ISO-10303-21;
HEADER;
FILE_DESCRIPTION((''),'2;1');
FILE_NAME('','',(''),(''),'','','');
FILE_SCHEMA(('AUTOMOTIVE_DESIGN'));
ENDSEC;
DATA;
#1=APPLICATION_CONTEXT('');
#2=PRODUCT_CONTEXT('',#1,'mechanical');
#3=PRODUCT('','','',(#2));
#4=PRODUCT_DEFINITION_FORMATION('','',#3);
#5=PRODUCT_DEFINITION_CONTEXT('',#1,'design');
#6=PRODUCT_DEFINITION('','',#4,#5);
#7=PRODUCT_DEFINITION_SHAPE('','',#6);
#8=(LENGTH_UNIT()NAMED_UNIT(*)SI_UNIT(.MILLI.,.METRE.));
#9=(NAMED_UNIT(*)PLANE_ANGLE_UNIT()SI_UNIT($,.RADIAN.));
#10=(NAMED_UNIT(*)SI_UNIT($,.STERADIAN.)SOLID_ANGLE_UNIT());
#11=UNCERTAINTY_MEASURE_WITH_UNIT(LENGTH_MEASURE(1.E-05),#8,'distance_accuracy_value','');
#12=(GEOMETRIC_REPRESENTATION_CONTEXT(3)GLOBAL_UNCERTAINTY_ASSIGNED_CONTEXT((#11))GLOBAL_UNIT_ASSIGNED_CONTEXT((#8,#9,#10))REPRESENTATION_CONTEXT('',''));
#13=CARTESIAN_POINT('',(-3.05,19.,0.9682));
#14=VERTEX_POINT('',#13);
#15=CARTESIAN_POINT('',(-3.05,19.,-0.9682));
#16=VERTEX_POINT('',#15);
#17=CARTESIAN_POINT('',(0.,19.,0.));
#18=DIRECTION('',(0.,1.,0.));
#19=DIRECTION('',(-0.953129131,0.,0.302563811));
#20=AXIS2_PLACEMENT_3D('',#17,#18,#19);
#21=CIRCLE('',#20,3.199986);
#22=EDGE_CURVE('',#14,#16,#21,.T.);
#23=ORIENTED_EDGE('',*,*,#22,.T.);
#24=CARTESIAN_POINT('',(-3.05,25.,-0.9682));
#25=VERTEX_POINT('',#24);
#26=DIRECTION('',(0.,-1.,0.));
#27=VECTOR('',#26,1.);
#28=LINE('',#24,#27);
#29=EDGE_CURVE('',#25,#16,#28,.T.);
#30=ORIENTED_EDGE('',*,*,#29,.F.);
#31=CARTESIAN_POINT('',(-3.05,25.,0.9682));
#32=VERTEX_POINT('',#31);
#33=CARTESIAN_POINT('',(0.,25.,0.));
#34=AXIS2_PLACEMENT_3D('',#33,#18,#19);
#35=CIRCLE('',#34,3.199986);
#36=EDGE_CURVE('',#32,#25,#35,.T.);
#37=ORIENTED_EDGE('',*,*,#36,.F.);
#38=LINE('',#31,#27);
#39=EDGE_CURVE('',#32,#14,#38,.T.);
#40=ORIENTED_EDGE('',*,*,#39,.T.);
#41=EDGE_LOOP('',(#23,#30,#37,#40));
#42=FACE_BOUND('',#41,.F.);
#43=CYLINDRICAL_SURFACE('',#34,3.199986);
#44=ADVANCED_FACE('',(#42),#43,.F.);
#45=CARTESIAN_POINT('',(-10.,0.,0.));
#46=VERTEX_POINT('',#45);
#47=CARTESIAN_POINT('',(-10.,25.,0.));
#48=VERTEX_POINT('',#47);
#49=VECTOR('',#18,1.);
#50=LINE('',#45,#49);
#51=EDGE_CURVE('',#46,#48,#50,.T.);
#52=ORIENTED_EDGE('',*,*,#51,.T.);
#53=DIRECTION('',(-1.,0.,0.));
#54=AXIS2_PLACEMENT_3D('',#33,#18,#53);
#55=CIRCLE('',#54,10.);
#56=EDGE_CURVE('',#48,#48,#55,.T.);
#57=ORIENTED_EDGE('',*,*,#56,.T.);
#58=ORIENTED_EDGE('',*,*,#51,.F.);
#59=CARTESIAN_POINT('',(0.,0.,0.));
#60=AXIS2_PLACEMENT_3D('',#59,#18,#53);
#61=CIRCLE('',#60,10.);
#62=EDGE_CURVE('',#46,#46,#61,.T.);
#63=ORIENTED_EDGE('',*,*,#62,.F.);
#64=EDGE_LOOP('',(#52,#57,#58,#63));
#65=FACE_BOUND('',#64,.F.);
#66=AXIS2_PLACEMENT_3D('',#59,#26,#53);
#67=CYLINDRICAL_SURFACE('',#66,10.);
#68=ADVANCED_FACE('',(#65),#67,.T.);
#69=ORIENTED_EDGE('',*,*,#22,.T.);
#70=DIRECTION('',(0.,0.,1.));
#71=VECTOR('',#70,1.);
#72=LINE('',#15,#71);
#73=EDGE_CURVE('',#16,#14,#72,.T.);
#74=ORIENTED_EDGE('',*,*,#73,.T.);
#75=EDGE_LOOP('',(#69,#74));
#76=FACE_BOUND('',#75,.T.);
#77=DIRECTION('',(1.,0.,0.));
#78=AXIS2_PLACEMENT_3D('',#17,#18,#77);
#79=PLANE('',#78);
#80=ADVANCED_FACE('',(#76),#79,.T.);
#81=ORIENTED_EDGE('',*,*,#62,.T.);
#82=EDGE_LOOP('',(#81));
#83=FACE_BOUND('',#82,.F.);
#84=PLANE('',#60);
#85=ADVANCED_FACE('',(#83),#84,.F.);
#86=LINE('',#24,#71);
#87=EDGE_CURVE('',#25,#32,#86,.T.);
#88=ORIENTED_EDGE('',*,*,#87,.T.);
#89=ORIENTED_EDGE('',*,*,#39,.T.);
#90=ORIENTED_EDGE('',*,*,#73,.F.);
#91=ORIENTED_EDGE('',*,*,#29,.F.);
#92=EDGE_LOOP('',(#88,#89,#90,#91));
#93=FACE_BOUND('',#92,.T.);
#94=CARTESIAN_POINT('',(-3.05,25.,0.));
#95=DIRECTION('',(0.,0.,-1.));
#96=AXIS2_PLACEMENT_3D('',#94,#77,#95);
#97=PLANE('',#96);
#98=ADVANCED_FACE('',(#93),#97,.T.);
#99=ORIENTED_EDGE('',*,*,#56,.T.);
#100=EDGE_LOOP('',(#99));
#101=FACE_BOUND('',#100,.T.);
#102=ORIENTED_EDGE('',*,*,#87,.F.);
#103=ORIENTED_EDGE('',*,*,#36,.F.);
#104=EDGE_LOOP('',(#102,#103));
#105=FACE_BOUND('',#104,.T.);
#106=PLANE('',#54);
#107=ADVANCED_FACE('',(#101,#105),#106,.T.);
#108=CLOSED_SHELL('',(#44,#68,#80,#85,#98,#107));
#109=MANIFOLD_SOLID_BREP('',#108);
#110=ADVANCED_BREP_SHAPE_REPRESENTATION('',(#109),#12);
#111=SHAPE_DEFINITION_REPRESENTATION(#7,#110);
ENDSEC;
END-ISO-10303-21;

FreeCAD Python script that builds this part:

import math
import FreeCAD as App
import Part
import Sketcher
from FreeCAD import Vector

doc = App.newDocument("Part")
params = doc.addObject("Spreadsheet::Sheet", "Params")
for row, (alias, value) in enumerate([
    ("sketch1_diameter", "20 mm"),
    ("pad1_length", "25 mm"),
    ("sketch2_radius", "3.2 mm"),
    ("pocket1_length", "6 mm"),
], start=1):
    params.set(f"A{row}", alias)
    params.set(f"B{row}", "=" + value)
    params.setAlias(f"B{row}", alias)

body = doc.addObject("PartDesign::Body", "Body")

# Sketch on XZ plane
sketch1 = body.newObject("Sketcher::SketchObject", "Sketch")
sketch1.AttachmentSupport = (doc.getObject("XZ_Plane"), [""])
sketch1.MapMode = "FlatFace"
sketch1.addGeometry(Part.Circle(Vector(0, 0, 0), Vector(0, 0, 1), 10), False)
sketch1.addConstraint(Sketcher.Constraint("Coincident", 0, 3, -1, 1))
sketch1.addConstraint(Sketcher.Constraint("Diameter", 0, 20.0))
sketch1.setExpression("Constraints[1]", "Params.sketch1_diameter")
pad1 = body.newObject("PartDesign::Pad", "Pad")
pad1.Profile = sketch1
pad1.setExpression("Length", "Params.pad1_length")
pad1.Reversed = True

# Sketch on XZ plane
sketch2 = body.newObject("Sketcher::SketchObject", "Sketch001")
sketch2.AttachmentSupport = (doc.getObject("XZ_Plane"), [""])
sketch2.MapMode = "FlatFace"
sketch2.AttachmentOffset = App.Placement(Vector(0, 0, -25), App.Rotation())
sketch2.addGeometry(Part.ArcOfCircle(Part.Circle(Vector(0, 0, 0), Vector(0, 0, 1), 3.199986), math.radians(-162.388343), math.radians(162.388343)), False)
sketch2.addGeometry(Part.LineSegment(Vector(-3.05, -0.9682, 0), Vector(-3.05, 0.9682, 0)), False)
sketch2.addConstraint(Sketcher.Constraint("Coincident", 0, 1, 1, 1))
sketch2.addConstraint(Sketcher.Constraint("Coincident", 1, 2, 0, 2))
sketch2.addConstraint(Sketcher.Constraint("Vertical", 1))
sketch2.addConstraint(Sketcher.Constraint("Coincident", 0, 3, -1, 1))
sketch2.addConstraint(Sketcher.Constraint("Radius", 0, 3.2))
sketch2.addConstraint(Sketcher.Constraint("DistanceX", 0, 1, -1, 1, 3.05))
sketch2.setExpression("Constraints[4]", "Params.sketch2_radius")
pocket1 = body.newObject("PartDesign::Pocket", "Pocket")
pocket1.Profile = sketch2
pocket1.setExpression("Length", "Params.pocket1_length")
pocket1.Reversed = True

doc.recompute()
